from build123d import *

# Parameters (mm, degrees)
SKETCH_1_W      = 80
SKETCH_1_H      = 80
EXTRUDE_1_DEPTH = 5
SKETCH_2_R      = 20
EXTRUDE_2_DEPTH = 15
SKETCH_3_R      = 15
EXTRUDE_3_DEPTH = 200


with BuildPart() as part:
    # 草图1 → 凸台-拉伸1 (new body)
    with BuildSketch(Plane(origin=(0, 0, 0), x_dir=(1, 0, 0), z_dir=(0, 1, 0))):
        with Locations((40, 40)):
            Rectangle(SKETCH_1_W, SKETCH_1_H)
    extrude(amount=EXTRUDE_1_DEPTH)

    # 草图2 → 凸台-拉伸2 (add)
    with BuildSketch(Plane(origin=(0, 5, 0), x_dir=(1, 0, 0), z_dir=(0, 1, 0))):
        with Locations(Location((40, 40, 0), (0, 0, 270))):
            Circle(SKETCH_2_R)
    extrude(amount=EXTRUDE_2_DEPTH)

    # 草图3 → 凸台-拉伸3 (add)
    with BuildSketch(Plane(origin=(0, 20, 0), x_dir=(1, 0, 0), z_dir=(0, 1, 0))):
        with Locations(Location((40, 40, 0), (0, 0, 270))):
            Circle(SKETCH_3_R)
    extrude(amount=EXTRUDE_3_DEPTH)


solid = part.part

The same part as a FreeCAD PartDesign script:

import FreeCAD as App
import Part
import Sketcher
Q = App.Units.Quantity

doc = App.newDocument("Part")
body = doc.addObject("PartDesign::Body", "Body")

sketch1 = body.newObject("Sketcher::SketchObject", "Sketch")
sketch1.AttachmentSupport = (doc.getObject("XZ_Plane"), [""])
sketch1.MapMode = "FlatFace"
sketch1.addGeometry([
    Part.LineSegment(App.Vector(0, -80, 0), App.Vector(0, 0, 0)),
    Part.LineSegment(App.Vector(0, 0, 0), App.Vector(80, 0, 0)),
    Part.LineSegment(App.Vector(80, 0, 0), App.Vector(80, -80, 0)),
    Part.LineSegment(App.Vector(80, -80, 0), App.Vector(0, -80, 0)),
], False)
sketch1.addConstraint([
    Sketcher.Constraint("Coincident", 0, 2, 1, 1),
    Sketcher.Constraint("Coincident", 1, 2, 2, 1),
    Sketcher.Constraint("Coincident", 2, 2, 3, 1),
    Sketcher.Constraint("Coincident", 3, 2, 0, 1),
    Sketcher.Constraint("Vertical", 0),
    Sketcher.Constraint("Horizontal", 1),
    Sketcher.Constraint("Vertical", 2),
    Sketcher.Constraint("Horizontal", 3),
    Sketcher.Constraint("Coincident", 0, 2, -1, 1),
    Sketcher.Constraint("Equal", 3, 0),
    Sketcher.Constraint("DistanceX", 1, 1, 1, 2, Q("80 mm")),
])
pad1 = body.newObject("PartDesign::Pad", "Pad")
pad1.Profile = sketch1
pad1.Length = 5
pad1.Reversed = True

sketch2 = body.newObject("Sketcher::SketchObject", "Sketch001")
sketch2.AttachmentSupport = (doc.getObject("XZ_Plane"), [""])
sketch2.MapMode = "FlatFace"
sketch2.AttachmentOffset = App.Placement(App.Vector(0, 0, -5), App.Rotation())
sketch2.addGeometry(Part.Circle(App.Vector(40, -40, 0), App.Vector(0, 0, 1), 20), False)
sketch2.addConstraint([
    Sketcher.Constraint("Diameter", 0, Q("40 mm")),
    Sketcher.Constraint("DistanceX", -1, 1, 0, 3, Q("40 mm")),
    Sketcher.Constraint("DistanceY", 0, 3, -1, 1, Q("40 mm")),
])
pad2 = body.newObject("PartDesign::Pad", "Pad001")
pad2.Profile = sketch2
pad2.Length = 15
pad2.Reversed = True

sketch3 = body.newObject("Sketcher::SketchObject", "Sketch002")
sketch3.AttachmentSupport = (doc.getObject("XZ_Plane"), [""])
sketch3.MapMode = "FlatFace"
sketch3.AttachmentOffset = App.Placement(App.Vector(0, 0, -20), App.Rotation())
sketch3.addGeometry(Part.Circle(App.Vector(40, -40, 0), App.Vector(0, 0, 1), 15), False)
sketch3.addConstraint([
    Sketcher.Constraint("Diameter", 0, Q("30 mm")),
    Sketcher.Constraint("DistanceX", -1, 1, 0, 3, Q("40 mm")),
    Sketcher.Constraint("DistanceY", 0, 3, -1, 1, Q("40 mm")),
])
pad3 = body.newObject("PartDesign::Pad", "Pad002")
pad3.Profile = sketch3
pad3.Length = 200
pad3.Reversed = True

doc.recompute()
